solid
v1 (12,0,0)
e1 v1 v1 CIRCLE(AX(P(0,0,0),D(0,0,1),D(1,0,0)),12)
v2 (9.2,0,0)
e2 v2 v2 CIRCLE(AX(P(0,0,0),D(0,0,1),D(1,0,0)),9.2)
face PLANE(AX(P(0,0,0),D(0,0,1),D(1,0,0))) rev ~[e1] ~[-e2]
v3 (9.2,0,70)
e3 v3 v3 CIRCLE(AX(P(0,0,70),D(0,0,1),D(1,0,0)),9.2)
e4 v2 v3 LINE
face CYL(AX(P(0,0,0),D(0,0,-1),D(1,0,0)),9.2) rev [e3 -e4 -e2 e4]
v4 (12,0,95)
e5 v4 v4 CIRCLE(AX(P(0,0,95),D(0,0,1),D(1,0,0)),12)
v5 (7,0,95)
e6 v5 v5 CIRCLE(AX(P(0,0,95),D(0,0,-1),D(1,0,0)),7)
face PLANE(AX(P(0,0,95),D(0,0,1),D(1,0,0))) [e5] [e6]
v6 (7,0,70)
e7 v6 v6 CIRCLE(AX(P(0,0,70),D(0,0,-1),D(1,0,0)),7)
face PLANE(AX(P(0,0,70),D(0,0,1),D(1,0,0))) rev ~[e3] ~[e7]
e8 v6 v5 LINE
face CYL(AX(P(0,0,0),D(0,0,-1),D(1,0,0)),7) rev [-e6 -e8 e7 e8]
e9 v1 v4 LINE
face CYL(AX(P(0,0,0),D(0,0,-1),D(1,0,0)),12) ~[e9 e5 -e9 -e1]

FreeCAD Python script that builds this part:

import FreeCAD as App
import Part
import Sketcher

doc = App.newDocument("Part")
body = doc.addObject("PartDesign::Body", "Body")

sketch1 = body.newObject("Sketcher::SketchObject", "Sketch")
sketch1.AttachmentSupport = (doc.getObject("XY_Plane"), [""])
sketch1.MapMode = "FlatFace"
sketch1.addGeometry(Part.Circle(App.Vector(0, 0, 0), App.Vector(0, 0, 1), 12), False)
sketch1.addConstraint([
    Sketcher.Constraint("Coincident", 0, 3, -1, 1),
    Sketcher.Constraint("Diameter", 0, 24.0),
])
pad1 = body.newObject("PartDesign::Pad", "Pad")
pad1.Profile = sketch1
pad1.Length = 95

sketch2 = body.newObject("Sketcher::SketchObject", "Sketch001")
sketch2.AttachmentSupport = (doc.getObject("XY_Plane"), [""])
sketch2.MapMode = "FlatFace"
sketch2.addGeometry(Part.Circle(App.Vector(0, 0, 0), App.Vector(0, 0, 1), 9), False)
sketch2.addConstraint([
    Sketcher.Constraint("Coincident", 0, 3, -1, 1),
    Sketcher.Constraint("Diameter", 0, 18.4),
])
pocket1 = body.newObject("PartDesign::Pocket", "Pocket")
pocket1.Profile = sketch2
pocket1.Length = 70
pocket1.Reversed = True

sketch3 = body.newObject("Sketcher::SketchObject", "Sketch002")
sketch3.AttachmentSupport = (doc.getObject("XY_Plane"), [""])
sketch3.MapMode = "FlatFace"
sketch3.addGeometry(Part.Circle(App.Vector(0, 0, 0), App.Vector(0, 0, 1), 7), False)
sketch3.addConstraint([
    Sketcher.Constraint("Coincident", 0, 3, -1, 1),
    Sketcher.Constraint("Diameter", 0, 14.0),
])
pocket2 = body.newObject("PartDesign::Pocket", "Pocket001")
pocket2.Profile = sketch3
pocket2.Type = "ThroughAll"
pocket2.Midplane = True

doc.recompute()
